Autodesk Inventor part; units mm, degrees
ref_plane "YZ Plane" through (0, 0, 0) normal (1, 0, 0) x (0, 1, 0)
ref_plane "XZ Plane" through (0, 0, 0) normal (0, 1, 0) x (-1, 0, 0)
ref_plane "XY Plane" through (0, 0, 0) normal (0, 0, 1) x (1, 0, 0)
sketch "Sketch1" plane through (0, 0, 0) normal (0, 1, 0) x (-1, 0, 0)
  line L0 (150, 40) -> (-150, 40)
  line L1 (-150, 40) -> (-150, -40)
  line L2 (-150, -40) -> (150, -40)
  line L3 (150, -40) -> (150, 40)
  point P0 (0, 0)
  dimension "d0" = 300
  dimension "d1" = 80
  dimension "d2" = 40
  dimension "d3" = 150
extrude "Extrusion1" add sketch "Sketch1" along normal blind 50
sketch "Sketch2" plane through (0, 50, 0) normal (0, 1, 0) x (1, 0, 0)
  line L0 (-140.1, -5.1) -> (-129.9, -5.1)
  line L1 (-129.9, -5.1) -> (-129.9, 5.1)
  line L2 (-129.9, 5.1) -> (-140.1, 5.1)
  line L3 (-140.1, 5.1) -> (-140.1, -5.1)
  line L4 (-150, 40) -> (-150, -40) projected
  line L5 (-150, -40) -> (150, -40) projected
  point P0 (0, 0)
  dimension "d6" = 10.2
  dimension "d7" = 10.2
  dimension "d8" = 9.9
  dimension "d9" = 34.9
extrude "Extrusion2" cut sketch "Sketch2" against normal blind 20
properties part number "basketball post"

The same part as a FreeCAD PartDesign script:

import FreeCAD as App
import Part
import Sketcher
from FreeCAD import Vector
Q = App.Units.Quantity


def add_polygon(sketch, points):
    """Adds a closed chain of lines whose ends are joined by coincident constraints."""
    first, n = sketch.GeometryCount, len(points)
    for a, b in zip(points, points[1:] + points[:1]):
        sketch.addGeometry(Part.LineSegment(App.Vector(*a, 0), App.Vector(*b, 0)), False)
    for i in range(n):
        sketch.addConstraint(Sketcher.Constraint("Coincident", first + i, 2, first + (i + 1) % n, 1))

doc = App.newDocument("Part")
body = doc.addObject("PartDesign::Body", "Body")

# Sketch on XZ plane
sketch1 = body.newObject("Sketcher::SketchObject", "Sketch")
sketch1.AttachmentSupport = (doc.getObject("XZ_Plane"), [""])
sketch1.MapMode = "FlatFace"
add_polygon(sketch1, [(-150, -40), (-150, 40), (150, 40), (150, -40)])  # lines 0-3
sketch1.addConstraint([
    Sketcher.Constraint("Vertical", 0),
    Sketcher.Constraint("Horizontal", 1),
    Sketcher.Constraint("Vertical", 2),
    Sketcher.Constraint("Horizontal", 3),
    Sketcher.Constraint("Symmetric", 0, 2, 2, 2, -1, 1),
    Sketcher.Constraint("DistanceX", 1, 1, 1, 2, Q("300 mm")),
    Sketcher.Constraint("DistanceY", 0, 1, 0, 2, Q("80 mm")),
])
pad1 = body.newObject("PartDesign::Pad", "Pad")
pad1.Profile = sketch1
pad1.Length = 50
pad1.Reversed = True

# Sketch on XZ plane
sketch2 = body.newObject("Sketcher::SketchObject", "Sketch001")
sketch2.AttachmentSupport = (doc.getObject("XZ_Plane"), [""])
sketch2.MapMode = "FlatFace"
sketch2.AttachmentOffset = App.Placement(Vector(0, 0, -50), App.Rotation())
add_polygon(sketch2, [(-140, -5), (-140, 5), (-130, 5), (-130, -5)])  # lines 0-3
sketch2.addConstraint([
    Sketcher.Constraint("Vertical", 0),
    Sketcher.Constraint("Horizontal", 1),
    Sketcher.Constraint("Vertical", 2),
    Sketcher.Constraint("Horizontal", 3),
    Sketcher.Constraint("Equal", 3, 0),
    Sketcher.Constraint("DistanceX", 1, 1, 1, 2, Q("10.2 mm")),
    Sketcher.Constraint("DistanceX", 0, 2, -1, 1, Q("140.1 mm")),
    Sketcher.Constraint("DistanceY", -1, 1, 0, 2, Q("5.1 mm")),
])
pocket1 = body.newObject("PartDesign::Pocket", "Pocket")
pocket1.Profile = sketch2
pocket1.Length = 20
pocket1.Reversed = True

doc.recompute()
